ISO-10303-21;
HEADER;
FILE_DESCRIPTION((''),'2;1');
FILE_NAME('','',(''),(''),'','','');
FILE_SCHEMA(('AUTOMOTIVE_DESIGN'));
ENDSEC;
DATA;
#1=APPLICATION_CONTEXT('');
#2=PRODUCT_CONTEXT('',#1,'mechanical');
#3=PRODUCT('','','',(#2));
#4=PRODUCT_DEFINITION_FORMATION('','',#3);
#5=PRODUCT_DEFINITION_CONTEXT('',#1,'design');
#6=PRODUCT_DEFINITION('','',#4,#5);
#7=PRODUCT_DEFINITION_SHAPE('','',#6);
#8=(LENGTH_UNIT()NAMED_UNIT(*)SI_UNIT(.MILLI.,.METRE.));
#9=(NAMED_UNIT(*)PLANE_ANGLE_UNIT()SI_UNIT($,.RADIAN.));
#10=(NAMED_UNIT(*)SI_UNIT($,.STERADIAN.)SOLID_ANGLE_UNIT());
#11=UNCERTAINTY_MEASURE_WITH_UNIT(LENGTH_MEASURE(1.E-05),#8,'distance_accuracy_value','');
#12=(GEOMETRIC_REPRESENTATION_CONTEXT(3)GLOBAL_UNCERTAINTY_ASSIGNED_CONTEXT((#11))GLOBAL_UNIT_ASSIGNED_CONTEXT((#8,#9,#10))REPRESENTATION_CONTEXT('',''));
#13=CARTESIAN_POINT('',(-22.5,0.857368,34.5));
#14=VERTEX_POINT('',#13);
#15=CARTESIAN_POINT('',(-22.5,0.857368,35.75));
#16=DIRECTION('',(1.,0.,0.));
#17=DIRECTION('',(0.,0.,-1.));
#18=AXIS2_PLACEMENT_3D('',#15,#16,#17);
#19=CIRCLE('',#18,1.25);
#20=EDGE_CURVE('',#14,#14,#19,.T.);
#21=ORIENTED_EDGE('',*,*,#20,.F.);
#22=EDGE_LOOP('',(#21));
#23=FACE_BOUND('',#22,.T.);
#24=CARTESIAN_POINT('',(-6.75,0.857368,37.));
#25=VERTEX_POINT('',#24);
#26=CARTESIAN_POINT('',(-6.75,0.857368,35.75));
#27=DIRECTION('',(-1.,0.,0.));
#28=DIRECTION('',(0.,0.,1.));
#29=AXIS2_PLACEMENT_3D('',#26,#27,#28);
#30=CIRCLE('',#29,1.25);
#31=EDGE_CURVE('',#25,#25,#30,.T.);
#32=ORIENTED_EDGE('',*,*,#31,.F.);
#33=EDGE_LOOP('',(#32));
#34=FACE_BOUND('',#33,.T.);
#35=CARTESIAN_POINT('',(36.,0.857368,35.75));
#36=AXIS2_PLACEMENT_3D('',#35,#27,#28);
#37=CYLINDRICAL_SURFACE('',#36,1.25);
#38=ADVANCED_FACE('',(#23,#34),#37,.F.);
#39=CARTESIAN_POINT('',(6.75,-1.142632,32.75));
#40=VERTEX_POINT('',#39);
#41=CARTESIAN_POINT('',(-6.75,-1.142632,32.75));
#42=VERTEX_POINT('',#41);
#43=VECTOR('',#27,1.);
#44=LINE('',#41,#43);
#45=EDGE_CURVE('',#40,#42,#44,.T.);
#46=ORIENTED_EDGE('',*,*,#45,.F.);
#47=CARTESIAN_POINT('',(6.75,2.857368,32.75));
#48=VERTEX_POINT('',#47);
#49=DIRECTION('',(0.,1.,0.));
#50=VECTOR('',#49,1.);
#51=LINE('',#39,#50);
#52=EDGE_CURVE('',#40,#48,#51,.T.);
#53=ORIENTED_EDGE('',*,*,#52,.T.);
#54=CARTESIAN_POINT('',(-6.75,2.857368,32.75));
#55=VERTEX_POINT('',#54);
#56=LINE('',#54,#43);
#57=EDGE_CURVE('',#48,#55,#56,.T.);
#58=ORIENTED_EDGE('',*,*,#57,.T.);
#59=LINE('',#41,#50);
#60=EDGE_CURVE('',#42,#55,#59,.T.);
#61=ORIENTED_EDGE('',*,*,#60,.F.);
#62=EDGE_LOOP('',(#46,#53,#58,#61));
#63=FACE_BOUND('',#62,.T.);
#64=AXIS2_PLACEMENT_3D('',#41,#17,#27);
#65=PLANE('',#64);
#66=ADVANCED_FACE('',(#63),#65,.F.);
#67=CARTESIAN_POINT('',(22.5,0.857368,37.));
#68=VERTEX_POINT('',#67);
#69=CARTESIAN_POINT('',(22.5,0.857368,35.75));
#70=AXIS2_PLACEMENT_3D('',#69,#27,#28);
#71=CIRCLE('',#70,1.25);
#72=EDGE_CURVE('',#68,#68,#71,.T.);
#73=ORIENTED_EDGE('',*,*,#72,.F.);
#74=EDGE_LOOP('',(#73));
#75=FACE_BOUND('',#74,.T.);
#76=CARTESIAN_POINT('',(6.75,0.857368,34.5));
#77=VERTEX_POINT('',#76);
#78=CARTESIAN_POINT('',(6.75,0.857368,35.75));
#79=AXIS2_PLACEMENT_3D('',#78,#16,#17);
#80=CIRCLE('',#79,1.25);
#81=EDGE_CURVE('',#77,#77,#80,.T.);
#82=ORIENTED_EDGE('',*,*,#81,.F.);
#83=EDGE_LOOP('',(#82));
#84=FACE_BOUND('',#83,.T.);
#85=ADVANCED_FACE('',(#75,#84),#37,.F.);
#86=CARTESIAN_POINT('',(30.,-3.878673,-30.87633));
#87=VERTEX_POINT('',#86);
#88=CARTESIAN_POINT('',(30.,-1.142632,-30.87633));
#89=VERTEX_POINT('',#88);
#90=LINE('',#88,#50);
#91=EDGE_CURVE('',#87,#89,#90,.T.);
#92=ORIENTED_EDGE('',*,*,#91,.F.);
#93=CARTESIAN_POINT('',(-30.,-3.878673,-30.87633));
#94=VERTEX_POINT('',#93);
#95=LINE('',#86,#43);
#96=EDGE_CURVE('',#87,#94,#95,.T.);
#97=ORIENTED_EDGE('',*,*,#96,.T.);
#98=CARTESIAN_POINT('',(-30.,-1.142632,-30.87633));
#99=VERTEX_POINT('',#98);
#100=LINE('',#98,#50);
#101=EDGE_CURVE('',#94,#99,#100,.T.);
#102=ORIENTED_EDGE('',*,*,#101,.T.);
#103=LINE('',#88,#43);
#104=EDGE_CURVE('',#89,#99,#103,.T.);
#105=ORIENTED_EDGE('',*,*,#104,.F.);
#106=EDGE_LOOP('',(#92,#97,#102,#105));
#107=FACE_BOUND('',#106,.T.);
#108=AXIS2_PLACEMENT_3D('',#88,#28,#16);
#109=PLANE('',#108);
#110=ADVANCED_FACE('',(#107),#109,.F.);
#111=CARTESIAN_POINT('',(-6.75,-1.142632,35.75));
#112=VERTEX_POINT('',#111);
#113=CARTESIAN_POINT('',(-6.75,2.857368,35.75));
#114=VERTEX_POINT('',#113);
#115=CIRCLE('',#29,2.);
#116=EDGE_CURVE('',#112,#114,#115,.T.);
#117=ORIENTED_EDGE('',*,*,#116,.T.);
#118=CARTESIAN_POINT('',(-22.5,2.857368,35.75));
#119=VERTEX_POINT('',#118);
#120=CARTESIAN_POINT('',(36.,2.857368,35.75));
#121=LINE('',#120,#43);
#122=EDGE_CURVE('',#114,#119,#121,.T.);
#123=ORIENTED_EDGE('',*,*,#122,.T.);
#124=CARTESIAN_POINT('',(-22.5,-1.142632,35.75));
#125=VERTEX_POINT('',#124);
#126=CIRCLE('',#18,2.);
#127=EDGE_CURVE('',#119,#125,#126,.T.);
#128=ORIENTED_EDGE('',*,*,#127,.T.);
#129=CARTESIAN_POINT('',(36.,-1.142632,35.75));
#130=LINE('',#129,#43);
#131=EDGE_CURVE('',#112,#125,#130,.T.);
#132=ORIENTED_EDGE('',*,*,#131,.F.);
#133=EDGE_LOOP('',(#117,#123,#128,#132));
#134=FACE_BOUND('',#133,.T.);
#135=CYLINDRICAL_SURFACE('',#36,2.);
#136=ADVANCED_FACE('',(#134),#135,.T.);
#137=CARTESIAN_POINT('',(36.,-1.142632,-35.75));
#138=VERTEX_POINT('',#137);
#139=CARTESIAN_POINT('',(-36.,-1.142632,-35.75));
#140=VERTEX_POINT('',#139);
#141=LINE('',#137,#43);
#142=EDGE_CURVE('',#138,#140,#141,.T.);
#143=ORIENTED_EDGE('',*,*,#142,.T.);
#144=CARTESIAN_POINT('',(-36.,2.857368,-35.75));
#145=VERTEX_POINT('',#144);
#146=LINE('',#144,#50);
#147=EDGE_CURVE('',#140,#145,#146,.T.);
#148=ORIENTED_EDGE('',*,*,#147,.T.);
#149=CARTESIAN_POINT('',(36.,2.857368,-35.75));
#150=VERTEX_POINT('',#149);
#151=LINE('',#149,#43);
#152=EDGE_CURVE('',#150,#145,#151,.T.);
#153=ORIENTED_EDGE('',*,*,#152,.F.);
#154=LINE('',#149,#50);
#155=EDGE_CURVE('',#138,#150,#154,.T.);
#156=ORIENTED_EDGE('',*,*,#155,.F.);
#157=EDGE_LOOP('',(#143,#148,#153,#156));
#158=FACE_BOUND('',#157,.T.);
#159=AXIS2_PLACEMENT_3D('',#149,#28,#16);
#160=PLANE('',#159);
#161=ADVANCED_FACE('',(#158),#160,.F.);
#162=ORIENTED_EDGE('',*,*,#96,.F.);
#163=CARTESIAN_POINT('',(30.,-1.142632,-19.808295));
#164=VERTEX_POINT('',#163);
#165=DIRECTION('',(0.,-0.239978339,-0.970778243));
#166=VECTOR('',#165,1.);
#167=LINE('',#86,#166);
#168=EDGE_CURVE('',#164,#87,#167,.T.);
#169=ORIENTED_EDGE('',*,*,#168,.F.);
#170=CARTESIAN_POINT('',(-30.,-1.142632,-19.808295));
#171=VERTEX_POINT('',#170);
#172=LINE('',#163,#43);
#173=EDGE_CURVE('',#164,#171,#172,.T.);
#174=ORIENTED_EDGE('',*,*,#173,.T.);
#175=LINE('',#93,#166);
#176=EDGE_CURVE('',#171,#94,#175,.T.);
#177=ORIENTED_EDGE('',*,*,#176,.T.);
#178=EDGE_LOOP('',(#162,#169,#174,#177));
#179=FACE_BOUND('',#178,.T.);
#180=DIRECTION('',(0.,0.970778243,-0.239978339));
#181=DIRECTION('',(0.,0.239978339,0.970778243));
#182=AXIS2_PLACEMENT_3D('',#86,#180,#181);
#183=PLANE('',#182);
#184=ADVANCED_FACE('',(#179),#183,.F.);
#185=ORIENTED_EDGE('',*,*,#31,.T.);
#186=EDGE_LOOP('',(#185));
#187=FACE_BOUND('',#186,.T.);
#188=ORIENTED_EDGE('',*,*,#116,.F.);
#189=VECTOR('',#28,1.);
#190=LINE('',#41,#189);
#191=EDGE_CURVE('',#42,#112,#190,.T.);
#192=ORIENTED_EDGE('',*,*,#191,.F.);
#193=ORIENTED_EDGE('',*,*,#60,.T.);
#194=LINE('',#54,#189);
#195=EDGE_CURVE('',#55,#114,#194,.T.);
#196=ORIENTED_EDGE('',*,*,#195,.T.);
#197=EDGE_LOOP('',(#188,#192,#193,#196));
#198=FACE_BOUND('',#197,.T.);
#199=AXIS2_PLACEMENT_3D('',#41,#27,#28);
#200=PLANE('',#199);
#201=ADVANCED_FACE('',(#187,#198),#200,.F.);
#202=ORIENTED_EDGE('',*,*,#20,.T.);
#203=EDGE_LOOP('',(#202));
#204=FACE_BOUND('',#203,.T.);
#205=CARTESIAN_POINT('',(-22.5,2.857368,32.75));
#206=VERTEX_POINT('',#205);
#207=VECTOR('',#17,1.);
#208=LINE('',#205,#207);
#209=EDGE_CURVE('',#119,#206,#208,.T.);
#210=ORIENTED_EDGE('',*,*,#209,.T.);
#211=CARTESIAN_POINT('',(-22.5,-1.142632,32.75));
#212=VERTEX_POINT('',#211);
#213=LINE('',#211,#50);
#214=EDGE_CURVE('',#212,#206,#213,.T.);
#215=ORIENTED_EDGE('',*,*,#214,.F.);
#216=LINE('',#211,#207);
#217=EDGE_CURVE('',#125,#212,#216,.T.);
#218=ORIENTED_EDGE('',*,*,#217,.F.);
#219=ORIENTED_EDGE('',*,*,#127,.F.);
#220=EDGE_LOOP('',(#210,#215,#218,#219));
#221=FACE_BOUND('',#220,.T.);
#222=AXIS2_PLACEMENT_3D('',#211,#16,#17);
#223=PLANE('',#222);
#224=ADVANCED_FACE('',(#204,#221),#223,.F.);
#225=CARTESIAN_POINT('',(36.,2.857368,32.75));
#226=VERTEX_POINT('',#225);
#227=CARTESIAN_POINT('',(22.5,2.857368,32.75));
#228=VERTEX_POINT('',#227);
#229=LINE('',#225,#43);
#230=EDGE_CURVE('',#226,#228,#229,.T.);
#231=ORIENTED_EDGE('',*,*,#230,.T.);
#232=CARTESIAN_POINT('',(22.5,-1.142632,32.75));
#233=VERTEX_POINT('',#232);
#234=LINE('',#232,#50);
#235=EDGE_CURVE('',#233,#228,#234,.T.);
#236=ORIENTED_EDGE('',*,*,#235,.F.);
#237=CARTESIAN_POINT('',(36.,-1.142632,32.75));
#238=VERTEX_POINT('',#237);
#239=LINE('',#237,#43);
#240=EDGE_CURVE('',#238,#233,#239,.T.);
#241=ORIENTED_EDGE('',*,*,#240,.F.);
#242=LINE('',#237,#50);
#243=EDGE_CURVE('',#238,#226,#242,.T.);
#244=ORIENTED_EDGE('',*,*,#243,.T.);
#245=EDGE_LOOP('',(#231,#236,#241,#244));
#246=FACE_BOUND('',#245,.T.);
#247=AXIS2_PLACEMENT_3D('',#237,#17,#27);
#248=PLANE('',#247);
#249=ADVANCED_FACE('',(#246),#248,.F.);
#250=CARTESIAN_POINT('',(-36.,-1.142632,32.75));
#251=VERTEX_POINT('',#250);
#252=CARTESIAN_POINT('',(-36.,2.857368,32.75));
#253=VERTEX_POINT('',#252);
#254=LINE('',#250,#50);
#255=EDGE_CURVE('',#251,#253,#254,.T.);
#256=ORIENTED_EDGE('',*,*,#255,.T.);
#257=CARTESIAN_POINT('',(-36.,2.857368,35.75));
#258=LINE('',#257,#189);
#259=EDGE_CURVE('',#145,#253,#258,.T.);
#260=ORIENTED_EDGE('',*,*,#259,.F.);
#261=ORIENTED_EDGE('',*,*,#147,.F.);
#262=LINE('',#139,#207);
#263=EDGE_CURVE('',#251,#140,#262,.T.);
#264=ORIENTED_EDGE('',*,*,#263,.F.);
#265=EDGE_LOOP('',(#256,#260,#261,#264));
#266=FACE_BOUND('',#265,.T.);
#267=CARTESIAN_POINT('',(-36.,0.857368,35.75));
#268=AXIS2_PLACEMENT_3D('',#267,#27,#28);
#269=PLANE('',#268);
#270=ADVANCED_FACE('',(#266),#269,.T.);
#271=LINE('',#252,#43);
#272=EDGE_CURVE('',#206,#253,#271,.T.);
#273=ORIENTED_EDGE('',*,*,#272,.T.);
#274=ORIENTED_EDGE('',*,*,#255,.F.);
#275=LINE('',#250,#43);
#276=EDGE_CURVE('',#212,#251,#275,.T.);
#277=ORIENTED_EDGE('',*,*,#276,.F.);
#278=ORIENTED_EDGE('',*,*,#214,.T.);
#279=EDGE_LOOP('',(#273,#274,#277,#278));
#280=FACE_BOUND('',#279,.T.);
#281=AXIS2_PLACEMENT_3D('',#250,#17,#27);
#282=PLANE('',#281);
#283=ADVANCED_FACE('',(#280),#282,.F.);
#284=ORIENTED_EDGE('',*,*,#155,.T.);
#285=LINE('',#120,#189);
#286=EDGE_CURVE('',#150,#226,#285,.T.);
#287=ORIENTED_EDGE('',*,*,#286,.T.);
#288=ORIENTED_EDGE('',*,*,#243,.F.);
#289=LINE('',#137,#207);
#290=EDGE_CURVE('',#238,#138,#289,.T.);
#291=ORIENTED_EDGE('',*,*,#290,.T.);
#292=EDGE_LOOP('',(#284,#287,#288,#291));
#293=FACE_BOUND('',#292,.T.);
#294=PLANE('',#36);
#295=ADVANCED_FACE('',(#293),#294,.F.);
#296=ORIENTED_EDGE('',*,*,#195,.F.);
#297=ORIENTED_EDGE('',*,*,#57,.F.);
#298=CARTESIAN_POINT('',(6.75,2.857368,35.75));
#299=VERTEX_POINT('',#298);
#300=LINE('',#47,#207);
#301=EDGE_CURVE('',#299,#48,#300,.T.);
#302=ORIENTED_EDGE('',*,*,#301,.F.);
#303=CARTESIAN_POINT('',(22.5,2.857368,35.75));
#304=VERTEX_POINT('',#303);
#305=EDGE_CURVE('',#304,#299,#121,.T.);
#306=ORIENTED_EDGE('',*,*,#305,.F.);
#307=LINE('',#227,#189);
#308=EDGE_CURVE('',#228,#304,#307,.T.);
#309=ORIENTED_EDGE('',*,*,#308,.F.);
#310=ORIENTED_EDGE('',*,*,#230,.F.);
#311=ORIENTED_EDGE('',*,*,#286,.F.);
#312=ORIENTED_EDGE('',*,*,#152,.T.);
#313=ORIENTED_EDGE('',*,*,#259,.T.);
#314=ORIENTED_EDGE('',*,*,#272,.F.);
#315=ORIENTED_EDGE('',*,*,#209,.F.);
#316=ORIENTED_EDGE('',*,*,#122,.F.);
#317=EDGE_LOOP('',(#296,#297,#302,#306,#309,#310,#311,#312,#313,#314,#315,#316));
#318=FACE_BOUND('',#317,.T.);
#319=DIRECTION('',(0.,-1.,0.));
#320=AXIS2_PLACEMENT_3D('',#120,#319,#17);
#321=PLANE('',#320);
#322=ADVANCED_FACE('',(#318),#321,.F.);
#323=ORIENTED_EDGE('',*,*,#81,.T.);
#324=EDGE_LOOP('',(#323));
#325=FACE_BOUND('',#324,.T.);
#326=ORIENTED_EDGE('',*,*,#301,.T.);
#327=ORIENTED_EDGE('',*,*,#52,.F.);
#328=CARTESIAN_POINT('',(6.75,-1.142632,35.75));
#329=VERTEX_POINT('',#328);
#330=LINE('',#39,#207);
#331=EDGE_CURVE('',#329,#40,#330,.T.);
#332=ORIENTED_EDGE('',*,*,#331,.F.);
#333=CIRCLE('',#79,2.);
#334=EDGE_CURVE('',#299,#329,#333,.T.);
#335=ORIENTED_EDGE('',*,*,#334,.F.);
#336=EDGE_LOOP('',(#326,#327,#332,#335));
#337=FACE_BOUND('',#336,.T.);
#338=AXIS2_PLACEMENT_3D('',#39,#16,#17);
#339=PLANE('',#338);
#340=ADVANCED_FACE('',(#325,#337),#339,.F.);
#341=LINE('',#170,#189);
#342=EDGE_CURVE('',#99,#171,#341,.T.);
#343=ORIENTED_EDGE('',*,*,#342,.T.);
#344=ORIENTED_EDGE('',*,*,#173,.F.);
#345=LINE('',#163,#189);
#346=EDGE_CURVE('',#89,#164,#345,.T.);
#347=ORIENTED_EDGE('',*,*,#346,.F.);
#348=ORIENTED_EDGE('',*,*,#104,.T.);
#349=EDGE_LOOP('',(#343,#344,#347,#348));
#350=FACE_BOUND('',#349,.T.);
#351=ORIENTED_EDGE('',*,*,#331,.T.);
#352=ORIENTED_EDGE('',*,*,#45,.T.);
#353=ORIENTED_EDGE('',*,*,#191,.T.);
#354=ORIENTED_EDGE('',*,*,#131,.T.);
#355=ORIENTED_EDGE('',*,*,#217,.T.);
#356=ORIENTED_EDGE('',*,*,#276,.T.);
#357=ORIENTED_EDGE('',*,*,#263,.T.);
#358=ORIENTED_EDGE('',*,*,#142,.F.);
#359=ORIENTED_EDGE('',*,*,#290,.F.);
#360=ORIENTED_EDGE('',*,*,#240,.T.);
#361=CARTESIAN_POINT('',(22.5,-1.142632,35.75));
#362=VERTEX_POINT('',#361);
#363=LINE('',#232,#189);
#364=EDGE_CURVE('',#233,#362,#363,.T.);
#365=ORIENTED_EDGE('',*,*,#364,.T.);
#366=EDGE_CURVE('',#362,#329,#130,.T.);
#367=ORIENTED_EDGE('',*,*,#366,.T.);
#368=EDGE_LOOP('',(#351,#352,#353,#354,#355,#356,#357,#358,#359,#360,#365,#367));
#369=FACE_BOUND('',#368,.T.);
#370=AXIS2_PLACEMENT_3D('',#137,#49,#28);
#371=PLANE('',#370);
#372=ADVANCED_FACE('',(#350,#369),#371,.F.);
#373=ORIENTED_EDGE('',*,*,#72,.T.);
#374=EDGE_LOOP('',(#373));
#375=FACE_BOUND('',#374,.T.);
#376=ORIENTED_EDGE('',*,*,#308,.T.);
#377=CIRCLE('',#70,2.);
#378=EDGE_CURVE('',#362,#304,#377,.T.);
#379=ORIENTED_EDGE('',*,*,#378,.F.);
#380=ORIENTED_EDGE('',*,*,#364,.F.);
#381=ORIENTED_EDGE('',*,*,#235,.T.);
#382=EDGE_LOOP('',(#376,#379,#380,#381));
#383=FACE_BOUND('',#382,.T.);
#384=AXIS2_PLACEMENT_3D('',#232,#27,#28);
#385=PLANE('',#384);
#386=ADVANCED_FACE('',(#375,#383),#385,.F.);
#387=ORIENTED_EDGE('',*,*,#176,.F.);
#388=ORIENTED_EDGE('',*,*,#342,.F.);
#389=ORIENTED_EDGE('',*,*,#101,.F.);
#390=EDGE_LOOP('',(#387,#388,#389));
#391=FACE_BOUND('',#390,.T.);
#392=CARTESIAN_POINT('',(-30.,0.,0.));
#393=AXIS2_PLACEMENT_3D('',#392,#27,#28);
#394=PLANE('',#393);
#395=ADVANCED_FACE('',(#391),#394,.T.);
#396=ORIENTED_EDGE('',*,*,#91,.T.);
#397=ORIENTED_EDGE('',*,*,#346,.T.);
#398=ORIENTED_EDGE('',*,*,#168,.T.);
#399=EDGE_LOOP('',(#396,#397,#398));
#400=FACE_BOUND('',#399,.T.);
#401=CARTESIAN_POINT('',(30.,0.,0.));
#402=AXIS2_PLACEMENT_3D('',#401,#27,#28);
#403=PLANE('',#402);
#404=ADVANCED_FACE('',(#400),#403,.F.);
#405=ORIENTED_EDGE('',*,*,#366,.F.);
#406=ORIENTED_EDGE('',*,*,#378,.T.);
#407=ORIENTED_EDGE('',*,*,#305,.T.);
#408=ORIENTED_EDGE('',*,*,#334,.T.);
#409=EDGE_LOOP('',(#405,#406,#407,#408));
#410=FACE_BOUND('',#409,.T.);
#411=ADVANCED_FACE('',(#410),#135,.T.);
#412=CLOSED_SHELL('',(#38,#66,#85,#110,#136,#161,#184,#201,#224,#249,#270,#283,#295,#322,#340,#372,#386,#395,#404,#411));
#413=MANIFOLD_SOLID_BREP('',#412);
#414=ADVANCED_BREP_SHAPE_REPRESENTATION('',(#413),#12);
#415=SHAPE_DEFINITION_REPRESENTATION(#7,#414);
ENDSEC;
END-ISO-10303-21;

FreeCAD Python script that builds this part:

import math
import FreeCAD as App
import Part
import Sketcher

V = App.Vector
Q = App.Units.Quantity

doc = App.newDocument("Part")
params = doc.addObject("Spreadsheet::Sheet", "Params")
for row, (alias, value) in enumerate([
    ("sketch1_radius", "2 mm"),
    ("sketch1_diameter", "2.5 mm"),
    ("sketch1_height", "71.5 mm"),
    ("pad1_length", "72 mm"),
    ("sketch2_height", "5 mm"),
    ("sketch2_width", "13.5 mm"),
    ("pad2_length", "60 mm"),
], start=1):
    params.set(f"A{row}", alias)
    params.set(f"B{row}", "=" + value)
    params.setAlias(f"B{row}", alias)

body = doc.addObject("PartDesign::Body", "Body")

sketch1 = body.newObject("Sketcher::SketchObject", "Sketch")
sketch1.AttachmentSupport = (doc.getObject("YZ_Plane"), [""])
sketch1.MapMode = "FlatFace"
sketch1.addGeometry(Part.LineSegment(V(2.857368, -35.75, 0), V(2.857368, 35.75, 0)), False)
sketch1.addGeometry(Part.ArcOfCircle(Part.Circle(V(0.857368, 35.75, 0), V(0, 0, 1), 2), math.radians(0), math.radians(180)), False)
sketch1.addGeometry(Part.LineSegment(V(-1.142632, 35.75, 0), V(-1.142632, -35.75, 0)), False)
sketch1.addGeometry(Part.LineSegment(V(-1.142632, -35.75, 0), V(2.857368, -35.75, 0)), False)
sketch1.addGeometry(Part.Circle(V(0.857368, 35.75, 0), V(0, 0, 1), 1.25), False)
sketch1.addConstraint(Sketcher.Constraint("Tangent", 0, 2, 1, 1))
sketch1.addConstraint(Sketcher.Constraint("Tangent", 1, 2, 2, 1))
sketch1.addConstraint(Sketcher.Constraint("Coincident", 2, 2, 3, 1))
sketch1.addConstraint(Sketcher.Constraint("Coincident", 3, 2, 0, 1))
sketch1.addConstraint(Sketcher.Constraint("Vertical", 0))
sketch1.addConstraint(Sketcher.Constraint("Vertical", 2))
sketch1.addConstraint(Sketcher.Constraint("Horizontal", 3))
sketch1.addConstraint(Sketcher.Constraint("Coincident", 4, 3, 1, 3))
sketch1.addConstraint(Sketcher.Constraint("Radius", 1, Q("2 mm")))
sketch1.addConstraint(Sketcher.Constraint("Diameter", 4, Q("2.5 mm")))
sketch1.addConstraint(Sketcher.Constraint("DistanceY", 0, 1, 0, 2, Q("71.5 mm")))
sketch1.addConstraint(Sketcher.Constraint("DistanceY", -1, 1, 1, 3, Q("35.75 mm")))
sketch1.addConstraint(Sketcher.Constraint("DistanceX", -1, 1, 1, 3, Q("0.857368 mm")))
sketch1.setExpression("Constraints[8]", "Params.sketch1_radius")
sketch1.setExpression("Constraints[9]", "Params.sketch1_diameter")
sketch1.setExpression("Constraints[10]", "Params.sketch1_height")
pad1 = body.newObject("PartDesign::Pad", "Pad")
pad1.Profile = sketch1
pad1.setExpression("Length", "Params.pad1_length")
pad1.Midplane = True

sketch2 = body.newObject("Sketcher::SketchObject", "Sketch001")
sketch2.AttachmentSupport = (doc.getObject("XZ_Plane"), [""])
sketch2.MapMode = "FlatFace"
sketch2.addGeometry(Part.LineSegment(V(-36, 32.75, 0), V(-36, 37.75, 0)), False)
sketch2.addGeometry(Part.LineSegment(V(-36, 37.75, 0), V(-22.5, 37.75, 0)), False)
sketch2.addGeometry(Part.LineSegment(V(-22.5, 37.75, 0), V(-22.5, 32.75, 0)), False)
sketch2.addGeometry(Part.LineSegment(V(-22.5, 32.75, 0), V(-36, 32.75, 0)), False)
sketch2.addGeometry(Part.LineSegment(V(22.5, 32.75, 0), V(22.5, 37.75, 0)), False)
sketch2.addGeometry(Part.LineSegment(V(22.5, 37.75, 0), V(36, 37.75, 0)), False)
sketch2.addGeometry(Part.LineSegment(V(36, 37.75, 0), V(36, 32.75, 0)), False)
sketch2.addGeometry(Part.LineSegment(V(36, 32.75, 0), V(22.5, 32.75, 0)), False)
sketch2.addGeometry(Part.LineSegment(V(-6.75, 32.75, 0), V(-6.75, 37.75, 0)), False)
sketch2.addGeometry(Part.LineSegment(V(-6.75, 37.75, 0), V(6.75, 37.75, 0)), False)
sketch2.addGeometry(Part.LineSegment(V(6.75, 37.75, 0), V(6.75, 32.75, 0)), False)
sketch2.addGeometry(Part.LineSegment(V(6.75, 32.75, 0), V(-6.75, 32.75, 0)), False)
sketch2.addConstraint(Sketcher.Constraint("Coincident", 0, 2, 1, 1))
sketch2.addConstraint(Sketcher.Constraint("Coincident", 1, 2, 2, 1))
sketch2.addConstraint(Sketcher.Constraint("Coincident", 2, 2, 3, 1))
sketch2.addConstraint(Sketcher.Constraint("Coincident", 3, 2, 0, 1))
sketch2.addConstraint(Sketcher.Constraint("Coincident", 4, 2, 5, 1))
sketch2.addConstraint(Sketcher.Constraint("Coincident", 5, 2, 6, 1))
sketch2.addConstraint(Sketcher.Constraint("Coincident", 6, 2, 7, 1))
sketch2.addConstraint(Sketcher.Constraint("Coincident", 7, 2, 4, 1))
sketch2.addConstraint(Sketcher.Constraint("Coincident", 8, 2, 9, 1))
sketch2.addConstraint(Sketcher.Constraint("Coincident", 9, 2, 10, 1))
sketch2.addConstraint(Sketcher.Constraint("Coincident", 10, 2, 11, 1))
sketch2.addConstraint(Sketcher.Constraint("Coincident", 11, 2, 8, 1))
sketch2.addConstraint(Sketcher.Constraint("Vertical", 0))
sketch2.addConstraint(Sketcher.Constraint("Horizontal", 1))
sketch2.addConstraint(Sketcher.Constraint("Vertical", 2))
sketch2.addConstraint(Sketcher.Constraint("Horizontal", 3))
sketch2.addConstraint(Sketcher.Constraint("Vertical", 4))
sketch2.addConstraint(Sketcher.Constraint("Horizontal", 5))
sketch2.addConstraint(Sketcher.Constraint("Vertical", 6))
sketch2.addConstraint(Sketcher.Constraint("Horizontal", 7))
sketch2.addConstraint(Sketcher.Constraint("Vertical", 8))
sketch2.addConstraint(Sketcher.Constraint("Horizontal", 9))
sketch2.addConstraint(Sketcher.Constraint("Vertical", 10))
sketch2.addConstraint(Sketcher.Constraint("Horizontal", 11))
sketch2.addConstraint(Sketcher.Constraint("Symmetric", 1, 2, 4, 2, -2))
sketch2.addConstraint(Sketcher.Constraint("Symmetric", 3, 2, 6, 2, -2))
sketch2.addConstraint(Sketcher.Constraint("Horizontal", 5, 2, 8, 2))
sketch2.addConstraint(Sketcher.Constraint("Horizontal", 7, 2, 10, 2))
sketch2.addConstraint(Sketcher.Constraint("Equal", 7, 9))
sketch2.addConstraint(Sketcher.Constraint("DistanceY", 0, 1, 0, 2, Q("5 mm")))
sketch2.addConstraint(Sketcher.Constraint("DistanceX", 1, 1, 1, 2, Q("13.5 mm")))
sketch2.addConstraint(Sketcher.Constraint("DistanceX", 0, 2, -1, 1, Q("36 mm")))
sketch2.addConstraint(Sketcher.Constraint("DistanceY", -1, 1, 0, 2, Q("37.75 mm")))
sketch2.addConstraint(Sketcher.Constraint("DistanceX", 8, 2, -1, 1, Q("6.75 mm")))
sketch2.setExpression("Constraints[29]", "Params.sketch2_height")
sketch2.setExpression("Constraints[30]", "Params.sketch2_width")
pocket1 = body.newObject("PartDesign::Pocket", "Pocket")
pocket1.Profile = sketch2
pocket1.Type = "ThroughAll"
pocket1.Midplane = True

sketch3 = body.newObject("Sketcher::SketchObject", "Sketch002")
sketch3.AttachmentSupport = (doc.getObject("YZ_Plane"), [""])
sketch3.MapMode = "FlatFace"
sketch3.addGeometry(Part.LineSegment(V(-3.878673, -30.87633, 0), V(-1.142632, -30.87633, 0)), False)
sketch3.addGeometry(Part.LineSegment(V(-1.142632, -30.87633, 0), V(-1.142632, -19.808295, 0)), False)
sketch3.addGeometry(Part.LineSegment(V(-1.142632, -19.808295, 0), V(-3.878673, -30.87633, 0)), False)
sketch3.addConstraint(Sketcher.Constraint("Coincident", 0, 2, 1, 1))
sketch3.addConstraint(Sketcher.Constraint("Coincident", 1, 2, 2, 1))
sketch3.addConstraint(Sketcher.Constraint("Coincident", 2, 2, 0, 1))
sketch3.addConstraint(Sketcher.Constraint("Horizontal", 0))
sketch3.addConstraint(Sketcher.Constraint("Vertical", 1))
sketch3.addConstraint(Sketcher.Constraint("Distance", 2, Q("11.401198 mm")))
sketch3.addConstraint(Sketcher.Constraint("DistanceX", 0, 1, 0, 2, Q("2.736041 mm")))
sketch3.addConstraint(Sketcher.Constraint("DistanceX", 0, 2, -1, 1, Q("1.142632 mm")))
sketch3.addConstraint(Sketcher.Constraint("DistanceY", 0, 2, -1, 1, Q("30.87633 mm")))
pad2 = body.newObject("PartDesign::Pad", "Pad001")
pad2.Profile = sketch3
pad2.setExpression("Length", "Params.pad2_length")
pad2.Midplane = True

doc.recompute()
